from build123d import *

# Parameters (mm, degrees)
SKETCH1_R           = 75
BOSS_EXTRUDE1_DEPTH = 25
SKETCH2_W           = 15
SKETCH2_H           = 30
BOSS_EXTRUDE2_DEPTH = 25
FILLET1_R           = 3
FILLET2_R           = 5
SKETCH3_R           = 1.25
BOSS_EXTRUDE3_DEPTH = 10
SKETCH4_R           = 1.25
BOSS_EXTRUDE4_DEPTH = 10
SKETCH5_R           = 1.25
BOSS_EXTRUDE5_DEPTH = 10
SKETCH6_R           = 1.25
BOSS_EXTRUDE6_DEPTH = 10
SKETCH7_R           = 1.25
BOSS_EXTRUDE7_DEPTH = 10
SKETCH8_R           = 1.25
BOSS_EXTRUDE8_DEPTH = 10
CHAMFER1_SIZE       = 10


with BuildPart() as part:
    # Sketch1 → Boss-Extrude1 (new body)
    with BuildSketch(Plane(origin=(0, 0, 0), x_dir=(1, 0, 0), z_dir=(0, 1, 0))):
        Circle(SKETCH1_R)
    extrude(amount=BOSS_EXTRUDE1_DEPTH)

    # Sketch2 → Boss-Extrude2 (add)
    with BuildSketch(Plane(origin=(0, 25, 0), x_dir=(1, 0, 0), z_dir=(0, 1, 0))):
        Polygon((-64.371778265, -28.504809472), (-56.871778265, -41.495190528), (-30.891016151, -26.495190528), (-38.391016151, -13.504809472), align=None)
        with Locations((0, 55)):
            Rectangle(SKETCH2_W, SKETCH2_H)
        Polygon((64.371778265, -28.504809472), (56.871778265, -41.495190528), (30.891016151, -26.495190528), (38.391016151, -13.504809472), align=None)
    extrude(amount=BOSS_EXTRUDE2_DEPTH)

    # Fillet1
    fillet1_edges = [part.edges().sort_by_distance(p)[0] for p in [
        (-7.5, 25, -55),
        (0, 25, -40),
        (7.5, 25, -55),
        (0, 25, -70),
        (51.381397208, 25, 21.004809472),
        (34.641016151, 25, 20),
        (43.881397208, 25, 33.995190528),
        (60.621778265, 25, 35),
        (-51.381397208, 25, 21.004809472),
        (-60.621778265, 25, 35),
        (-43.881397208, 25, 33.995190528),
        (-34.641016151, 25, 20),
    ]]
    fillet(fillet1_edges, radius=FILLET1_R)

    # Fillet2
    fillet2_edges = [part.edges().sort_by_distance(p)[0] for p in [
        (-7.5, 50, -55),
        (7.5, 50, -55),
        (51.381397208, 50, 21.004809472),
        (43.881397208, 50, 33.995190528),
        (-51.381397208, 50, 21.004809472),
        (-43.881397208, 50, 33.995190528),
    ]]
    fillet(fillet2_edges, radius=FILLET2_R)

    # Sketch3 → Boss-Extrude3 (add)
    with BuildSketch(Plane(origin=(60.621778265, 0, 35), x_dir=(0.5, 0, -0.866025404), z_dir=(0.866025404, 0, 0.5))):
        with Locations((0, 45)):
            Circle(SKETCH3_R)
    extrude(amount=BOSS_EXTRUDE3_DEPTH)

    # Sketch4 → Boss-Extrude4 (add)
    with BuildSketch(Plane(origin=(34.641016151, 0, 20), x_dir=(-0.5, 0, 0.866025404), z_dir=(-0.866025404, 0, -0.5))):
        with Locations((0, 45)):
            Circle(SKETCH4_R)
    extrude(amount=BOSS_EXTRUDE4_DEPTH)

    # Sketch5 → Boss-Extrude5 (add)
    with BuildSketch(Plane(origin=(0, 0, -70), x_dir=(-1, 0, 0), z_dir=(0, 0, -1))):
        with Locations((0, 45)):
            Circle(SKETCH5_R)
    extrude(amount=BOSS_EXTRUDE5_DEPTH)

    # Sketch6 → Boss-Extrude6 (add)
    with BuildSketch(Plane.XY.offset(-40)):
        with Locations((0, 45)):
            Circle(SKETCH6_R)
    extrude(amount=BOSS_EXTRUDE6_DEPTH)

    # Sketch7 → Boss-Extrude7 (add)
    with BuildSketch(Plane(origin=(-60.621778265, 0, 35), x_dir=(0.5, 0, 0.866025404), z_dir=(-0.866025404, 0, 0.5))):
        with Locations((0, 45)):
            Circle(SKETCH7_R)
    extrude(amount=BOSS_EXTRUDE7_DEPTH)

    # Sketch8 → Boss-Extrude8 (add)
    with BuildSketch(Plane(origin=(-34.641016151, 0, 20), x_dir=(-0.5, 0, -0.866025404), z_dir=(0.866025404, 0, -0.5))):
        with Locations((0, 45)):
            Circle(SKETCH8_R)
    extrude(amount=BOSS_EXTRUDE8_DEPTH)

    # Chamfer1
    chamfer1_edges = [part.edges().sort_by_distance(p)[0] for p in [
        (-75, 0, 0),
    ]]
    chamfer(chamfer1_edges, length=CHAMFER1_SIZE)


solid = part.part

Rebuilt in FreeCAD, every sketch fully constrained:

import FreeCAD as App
import Part
import Sketcher
from FreeCAD import Vector
Q = App.Units.Quantity


def edges_at(feature, points):
    """Names of the edges that pass closest to the given points."""
    edges = feature.Shape.Edges
    near = lambda p: min(range(len(edges)), key=lambda i: edges[i].distToShape(Part.Vertex(*p))[0])
    return sorted({f"Edge{near(p) + 1}" for p in points})


def add_polygon(sketch, points):
    """Adds a closed chain of lines whose ends are joined by coincident constraints."""
    first, n = sketch.GeometryCount, len(points)
    for a, b in zip(points, points[1:] + points[:1]):
        sketch.addGeometry(Part.LineSegment(App.Vector(*a, 0), App.Vector(*b, 0)), False)
    for i in range(n):
        sketch.addConstraint(Sketcher.Constraint("Coincident", first + i, 2, first + (i + 1) % n, 1))

doc = App.newDocument("Part")
body = doc.addObject("PartDesign::Body", "Body")

# Sketch on XZ plane
sketch1 = doc.addObject("Sketcher::SketchObject", "Sketch")
body.addObject(sketch1)
sketch1.AttachmentSupport = (doc.XZ_Plane, [""])
sketch1.MapMode = "FlatFace"
sketch1.addGeometry(Part.Circle(Vector(0, 0, 0), Vector(0, 0, 1), 75), False)
sketch1.addConstraint(Sketcher.Constraint("Coincident", 0, 3, -1, 1))
sketch1.addConstraint(Sketcher.Constraint("Diameter", 0, Q("150 mm")))
pad1 = doc.addObject("PartDesign::Pad", "Pad")
body.addObject(pad1)
pad1.Profile = sketch1
pad1.Length = 25
pad1.Reversed = True

# Sketch on XZ plane
sketch2 = doc.addObject("Sketcher::SketchObject", "Sketch001")
body.addObject(sketch2)
sketch2.AttachmentSupport = (doc.XZ_Plane, [""])
sketch2.MapMode = "FlatFace"
sketch2.AttachmentOffset = App.Placement(Vector(0, 0, -25), App.Rotation())
add_polygon(sketch2, [(-64.371778, 28.504809), (-56.871778, 41.495191), (-30.891016, 26.495191), (-38.391016, 13.504809)])  # lines 0-3
add_polygon(sketch2, [(-7.5, -70), (-7.5, -40), (7.5, -40), (7.5, -70)])  # lines 4-7
add_polygon(sketch2, [(56.871778, 41.495191), (64.371778, 28.504809), (38.391016, 13.504809), (30.891016, 26.495191)])  # lines 8-11
sketch2.addConstraint(Sketcher.Constraint("Vertical", 4))
sketch2.addConstraint(Sketcher.Constraint("Horizontal", 5))
sketch2.addConstraint(Sketcher.Constraint("Vertical", 6))
sketch2.addConstraint(Sketcher.Constraint("Horizontal", 7))
sketch2.addConstraint(Sketcher.Constraint("Symmetric", 3, 2, 8, 2, -2))
sketch2.addConstraint(Sketcher.Constraint("Symmetric", 2, 2, 9, 2, -2))
sketch2.addConstraint(Sketcher.Constraint("Symmetric", 1, 2, 10, 2, -2))
sketch2.addConstraint(Sketcher.Constraint("Symmetric", 0, 2, 11, 2, -2))
sketch2.addConstraint(Sketcher.Constraint("Perpendicular", 0, 1))
sketch2.addConstraint(Sketcher.Constraint("Perpendicular", 1, 2))
sketch2.addConstraint(Sketcher.Constraint("Perpendicular", 2, 3))
sketch2.addConstraint(Sketcher.Constraint("DistanceX", 5, 1, 5, 2, Q("15 mm")))
sketch2.addConstraint(Sketcher.Constraint("DistanceY", 4, 1, 4, 2, Q("30 mm")))
sketch2.addConstraint(Sketcher.Constraint("Angle", 0, Q("60 deg")))
sketch2.addConstraint(Sketcher.Constraint("Distance", 0, Q("15 mm")))
sketch2.addConstraint(Sketcher.Constraint("Distance", 1, Q("30 mm")))
sketch2.addConstraint(Sketcher.Constraint("DistanceY", 4, 2, -1, 1, Q("40 mm")))
sketch2.addConstraint(Sketcher.Constraint("DistanceX", 4, 2, -1, 1, Q("7.5 mm")))
sketch2.addConstraint(Sketcher.Constraint("DistanceX", 0, 2, -1, 1, Q("56.871778 mm")))
sketch2.addConstraint(Sketcher.Constraint("DistanceY", -1, 1, 0, 2, Q("41.495191 mm")))
pad2 = doc.addObject("PartDesign::Pad", "Pad001")
body.addObject(pad2)
pad2.Profile = sketch2
pad2.Length = 25
pad2.Reversed = True
doc.recompute()

fillet = doc.addObject("PartDesign::Fillet", "Fillet")
body.addObject(fillet)
fillet.Base = (pad2, edges_at(pad2, [
    (-7.5, 25, -55),
    (0, 25, -40),
    (7.5, 25, -55),
    (0, 25, -70),
    (51.381, 25, 21.005),
    (34.641, 25, 20),
    (43.881, 25, 33.995),
    (60.622, 25, 35),
    (-51.381, 25, 21.005),
    (-60.622, 25, 35),
    (-43.881, 25, 33.995),
    (-34.641, 25, 20),
]))
fillet.Radius = 3
doc.recompute()

fillet2 = doc.addObject("PartDesign::Fillet", "Fillet001")
body.addObject(fillet2)
fillet2.Base = (fillet, edges_at(fillet, [
    (-7.5, 50, -55),
    (7.5, 50, -55),
    (51.381, 50, 21.005),
    (43.881, 50, 33.995),
    (-51.381, 50, 21.005),
    (-43.881, 50, 33.995),
]))
fillet2.Radius = 5

# Sketch on an angled plane
sketch3 = doc.addObject("Sketcher::SketchObject", "Sketch002")
body.addObject(sketch3)
sketch3.Placement = App.Placement(Vector(60.621778, 0, 35), App.Rotation(Vector(0.5, 0, -0.866025404), Vector(0, 1, 0), Vector(0.866025404, 0, 0.5), "ZXY"))
sketch3.addGeometry(Part.Circle(Vector(0, 45, 0), Vector(0, 0, 1), 1.25), False)
sketch3.addConstraint(Sketcher.Constraint("PointOnObject", 0, 3, -2))
sketch3.addConstraint(Sketcher.Constraint("Diameter", 0, Q("2.5 mm")))
sketch3.addConstraint(Sketcher.Constraint("DistanceY", -1, 1, 0, 3, Q("45 mm")))
pad3 = doc.addObject("PartDesign::Pad", "Pad002")
body.addObject(pad3)
pad3.Profile = sketch3
pad3.Length = 10

# Sketch on an angled plane
sketch4 = doc.addObject("Sketcher::SketchObject", "Sketch003")
body.addObject(sketch4)
sketch4.Placement = App.Placement(Vector(34.641016, 0, 20), App.Rotation(Vector(-0.5, 0, 0.866025404), Vector(0, 1, 0), Vector(-0.866025404, 0, -0.5), "ZXY"))
sketch4.addGeometry(Part.Circle(Vector(0, 45, 0), Vector(0, 0, 1), 1.25), False)
sketch4.addConstraint(Sketcher.Constraint("PointOnObject", 0, 3, -2))
sketch4.addConstraint(Sketcher.Constraint("Diameter", 0, Q("2.5 mm")))
sketch4.addConstraint(Sketcher.Constraint("DistanceY", -1, 1, 0, 3, Q("45 mm")))
pad4 = doc.addObject("PartDesign::Pad", "Pad003")
body.addObject(pad4)
pad4.Profile = sketch4
pad4.Length = 10

# Sketch on XY plane
sketch5 = doc.addObject("Sketcher::SketchObject", "Sketch004")
body.addObject(sketch5)
sketch5.AttachmentSupport = (doc.XY_Plane, [""])
sketch5.MapMode = "FlatFace"
sketch5.AttachmentOffset = App.Placement(Vector(0, 0, -70), App.Rotation())
sketch5.addGeometry(Part.Circle(Vector(0, 45, 0), Vector(0, 0, 1), 1.25), False)
sketch5.addConstraint(Sketcher.Constraint("PointOnObject", 0, 3, -2))
sketch5.addConstraint(Sketcher.Constraint("Diameter", 0, Q("2.5 mm")))
sketch5.addConstraint(Sketcher.Constraint("DistanceY", -1, 1, 0, 3, Q("45 mm")))
pad5 = doc.addObject("PartDesign::Pad", "Pad004")
body.addObject(pad5)
pad5.Profile = sketch5
pad5.Length = 10
pad5.Reversed = True

# Sketch on XY plane
sketch6 = doc.addObject("Sketcher::SketchObject", "Sketch005")
body.addObject(sketch6)
sketch6.AttachmentSupport = (doc.XY_Plane, [""])
sketch6.MapMode = "FlatFace"
sketch6.AttachmentOffset = App.Placement(Vector(0, 0, -40), App.Rotation())
sketch6.addGeometry(Part.Circle(Vector(0, 45, 0), Vector(0, 0, 1), 1.25), False)
sketch6.addConstraint(Sketcher.Constraint("PointOnObject", 0, 3, -2))
sketch6.addConstraint(Sketcher.Constraint("Diameter", 0, Q("2.5 mm")))
sketch6.addConstraint(Sketcher.Constraint("DistanceY", -1, 1, 0, 3, Q("45 mm")))
pad6 = doc.addObject("PartDesign::Pad", "Pad005")
body.addObject(pad6)
pad6.Profile = sketch6
pad6.Length = 10

# Sketch on an angled plane
sketch7 = doc.addObject("Sketcher::SketchObject", "Sketch006")
body.addObject(sketch7)
sketch7.Placement = App.Placement(Vector(-60.621778, 0, 35), App.Rotation(Vector(0.5, 0, 0.866025404), Vector(0, 1, 0), Vector(-0.866025404, 0, 0.5), "ZXY"))
sketch7.addGeometry(Part.Circle(Vector(0, 45, 0), Vector(0, 0, 1), 1.25), False)
sketch7.addConstraint(Sketcher.Constraint("PointOnObject", 0, 3, -2))
sketch7.addConstraint(Sketcher.Constraint("Diameter", 0, Q("2.5 mm")))
sketch7.addConstraint(Sketcher.Constraint("DistanceY", -1, 1, 0, 3, Q("45 mm")))
pad7 = doc.addObject("PartDesign::Pad", "Pad006")
body.addObject(pad7)
pad7.Profile = sketch7
pad7.Length = 10

# Sketch on an angled plane
sketch8 = doc.addObject("Sketcher::SketchObject", "Sketch007")
body.addObject(sketch8)
sketch8.Placement = App.Placement(Vector(-34.641016, 0, 20), App.Rotation(Vector(-0.5, 0, -0.866025404), Vector(0, 1, 0), Vector(0.866025404, 0, -0.5), "ZXY"))
sketch8.addGeometry(Part.Circle(Vector(0, 45, 0), Vector(0, 0, 1), 1.25), False)
sketch8.addConstraint(Sketcher.Constraint("PointOnObject", 0, 3, -2))
sketch8.addConstraint(Sketcher.Constraint("Diameter", 0, Q("2.5 mm")))
sketch8.addConstraint(Sketcher.Constraint("DistanceY", -1, 1, 0, 3, Q("45 mm")))
pad8 = doc.addObject("PartDesign::Pad", "Pad007")
body.addObject(pad8)
pad8.Profile = sketch8
pad8.Length = 10
doc.recompute()

chamfer = doc.addObject("PartDesign::Chamfer", "Chamfer")
body.addObject(chamfer)
chamfer.Base = (pad8, edges_at(pad8, [(-75, 0, 0)]))
chamfer.Size = 10

doc.recompute()
